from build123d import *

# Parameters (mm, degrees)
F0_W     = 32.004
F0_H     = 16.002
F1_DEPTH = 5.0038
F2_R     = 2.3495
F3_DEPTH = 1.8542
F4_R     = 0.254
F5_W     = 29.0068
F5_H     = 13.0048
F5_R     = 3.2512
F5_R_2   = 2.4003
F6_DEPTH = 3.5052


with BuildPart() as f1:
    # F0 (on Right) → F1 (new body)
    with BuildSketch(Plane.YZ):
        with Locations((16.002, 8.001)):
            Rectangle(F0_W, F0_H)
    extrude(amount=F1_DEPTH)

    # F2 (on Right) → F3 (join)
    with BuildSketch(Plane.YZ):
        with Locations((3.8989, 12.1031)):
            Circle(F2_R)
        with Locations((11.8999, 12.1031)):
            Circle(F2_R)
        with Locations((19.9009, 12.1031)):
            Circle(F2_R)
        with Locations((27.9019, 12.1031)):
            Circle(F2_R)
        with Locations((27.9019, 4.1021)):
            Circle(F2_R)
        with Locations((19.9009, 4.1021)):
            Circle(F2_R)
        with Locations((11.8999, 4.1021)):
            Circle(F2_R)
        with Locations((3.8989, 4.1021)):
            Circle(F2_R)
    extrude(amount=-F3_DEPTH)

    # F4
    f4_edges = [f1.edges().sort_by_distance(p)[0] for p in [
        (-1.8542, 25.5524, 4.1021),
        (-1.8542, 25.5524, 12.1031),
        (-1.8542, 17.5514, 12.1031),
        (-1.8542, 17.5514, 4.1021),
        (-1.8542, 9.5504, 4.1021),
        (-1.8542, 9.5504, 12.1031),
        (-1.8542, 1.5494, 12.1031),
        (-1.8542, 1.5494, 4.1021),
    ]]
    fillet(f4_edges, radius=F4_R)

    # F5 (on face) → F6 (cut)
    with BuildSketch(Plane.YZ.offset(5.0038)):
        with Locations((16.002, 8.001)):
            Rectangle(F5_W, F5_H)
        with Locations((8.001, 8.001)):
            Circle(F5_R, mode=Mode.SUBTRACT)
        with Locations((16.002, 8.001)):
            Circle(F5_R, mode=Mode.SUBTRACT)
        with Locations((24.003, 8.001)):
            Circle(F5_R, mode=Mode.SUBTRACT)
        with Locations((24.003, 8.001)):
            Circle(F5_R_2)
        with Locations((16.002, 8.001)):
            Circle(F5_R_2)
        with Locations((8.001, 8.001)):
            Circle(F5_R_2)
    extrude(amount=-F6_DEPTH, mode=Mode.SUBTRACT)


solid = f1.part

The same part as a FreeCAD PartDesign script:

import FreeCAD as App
import Part
import Sketcher
Q = App.Units.Quantity


def edges_at(feature, points):
    """Names of the edges that pass closest to the given points."""
    edges = feature.Shape.Edges
    near = lambda p: min(range(len(edges)), key=lambda i: edges[i].distToShape(Part.Vertex(*p))[0])
    return sorted({f"Edge{near(p) + 1}" for p in points})

doc = App.newDocument("Part")
body = doc.addObject("PartDesign::Body", "Body")

# Sketch on YZ plane
sketch1 = body.newObject("Sketcher::SketchObject", "Sketch")
sketch1.AttachmentSupport = (doc.getObject("YZ_Plane"), [""])
sketch1.MapMode = "FlatFace"
sketch1.addGeometry(Part.LineSegment(App.Vector(0, 16, 0), App.Vector(0, 0, 0)), False)
sketch1.addGeometry(Part.LineSegment(App.Vector(0, 0, 0), App.Vector(32, 0, 0)), False)
sketch1.addGeometry(Part.LineSegment(App.Vector(32, 0, 0), App.Vector(32, 16, 0)), False)
sketch1.addGeometry(Part.LineSegment(App.Vector(32, 16, 0), App.Vector(0, 16, 0)), False)
sketch1.addConstraint(Sketcher.Constraint("Coincident", 0, 2, 1, 1))
sketch1.addConstraint(Sketcher.Constraint("Coincident", 1, 2, 2, 1))
sketch1.addConstraint(Sketcher.Constraint("Coincident", 2, 2, 3, 1))
sketch1.addConstraint(Sketcher.Constraint("Coincident", 3, 2, 0, 1))
sketch1.addConstraint(Sketcher.Constraint("Vertical", 0))
sketch1.addConstraint(Sketcher.Constraint("Horizontal", 1))
sketch1.addConstraint(Sketcher.Constraint("Vertical", 2))
sketch1.addConstraint(Sketcher.Constraint("Horizontal", 3))
sketch1.addConstraint(Sketcher.Constraint("Coincident", 0, 2, -1, 1))
sketch1.addConstraint(Sketcher.Constraint("DistanceX", 1, 1, 1, 2, Q("1.26 in")))
sketch1.addConstraint(Sketcher.Constraint("DistanceY", 0, 2, 0, 1, Q("0.63 in")))
pad1 = body.newObject("PartDesign::Pad", "Pad")
pad1.Profile = sketch1
pad1.Length = Q("0.197 in")

# Sketch on YZ plane
sketch2 = body.newObject("Sketcher::SketchObject", "Sketch001")
sketch2.AttachmentSupport = (doc.getObject("YZ_Plane"), [""])
sketch2.MapMode = "FlatFace"
sketch2.addGeometry(Part.Circle(App.Vector(3.9, 12.1, 0), App.Vector(0, 0, 1), 2.3), False)
sketch2.addGeometry(Part.Circle(App.Vector(11.9, 12.1, 0), App.Vector(0, 0, 1), 2.3), False)
sketch2.addGeometry(Part.Circle(App.Vector(19.9, 12.1, 0), App.Vector(0, 0, 1), 2.3), False)
sketch2.addGeometry(Part.Circle(App.Vector(27.9, 12.1, 0), App.Vector(0, 0, 1), 2.3), False)
sketch2.addGeometry(Part.Circle(App.Vector(27.9, 4.1, 0), App.Vector(0, 0, 1), 2.3), False)
sketch2.addGeometry(Part.Circle(App.Vector(19.9, 4.1, 0), App.Vector(0, 0, 1), 2.3), False)
sketch2.addGeometry(Part.Circle(App.Vector(11.9, 4.1, 0), App.Vector(0, 0, 1), 2.3), False)
sketch2.addGeometry(Part.Circle(App.Vector(3.9, 4.1, 0), App.Vector(0, 0, 1), 2.3), False)
sketch2.addConstraint(Sketcher.Constraint("Equal", 0, 1))
sketch2.addConstraint(Sketcher.Constraint("Equal", 1, 2))
sketch2.addConstraint(Sketcher.Constraint("Equal", 2, 3))
sketch2.addConstraint(Sketcher.Constraint("Equal", 3, 4))
sketch2.addConstraint(Sketcher.Constraint("Equal", 4, 5))
sketch2.addConstraint(Sketcher.Constraint("Equal", 5, 6))
sketch2.addConstraint(Sketcher.Constraint("Equal", 6, 7))
sketch2.addConstraint(Sketcher.Constraint("Horizontal", 0, 3, 1, 3))
sketch2.addConstraint(Sketcher.Constraint("Horizontal", 1, 3, 2, 3))
sketch2.addConstraint(Sketcher.Constraint("Horizontal", 2, 3, 3, 3))
sketch2.addConstraint(Sketcher.Constraint("Horizontal", 4, 3, 5, 3))
sketch2.addConstraint(Sketcher.Constraint("Horizontal", 5, 3, 6, 3))
sketch2.addConstraint(Sketcher.Constraint("Horizontal", 6, 3, 7, 3))
sketch2.addConstraint(Sketcher.Constraint("Vertical", 3, 3, 4, 3))
sketch2.addConstraint(Sketcher.Constraint("Vertical", 2, 3, 5, 3))
sketch2.addConstraint(Sketcher.Constraint("Vertical", 1, 3, 6, 3))
sketch2.addConstraint(Sketcher.Constraint("Vertical", 0, 3, 7, 3))
sketch2.addConstraint(Sketcher.Constraint("Diameter", 0, Q("0.185 in")))
sketch2.addConstraint(Sketcher.Constraint("DistanceX", 0, 3, 2, 3, Q("0.63 in")))
sketch2.addConstraint(Sketcher.Constraint("DistanceX", 1, 3, 3, 3, Q("0.63 in")))
sketch2.addConstraint(Sketcher.Constraint("DistanceX", 0, 3, 1, 3, Q("0.315 in")))
sketch2.addConstraint(Sketcher.Constraint("DistanceY", 4, 3, 3, 3, Q("0.315 in")))
sketch2.addConstraint(Sketcher.Constraint("DistanceX", -1, 1, 0, 3, Q("0.1535 in")))
sketch2.addConstraint(Sketcher.Constraint("DistanceY", -1, 1, 0, 3, Q("0.4765 in")))
pad2 = body.newObject("PartDesign::Pad", "Pad001")
pad2.Profile = sketch2
pad2.Length = Q("0.073 in")
pad2.Reversed = True
doc.recompute()

fillet = body.newObject("PartDesign::Fillet", "Fillet")
fillet.Base = (pad2, edges_at(pad2, [
    (-1.854, 25.552, 4.102),
    (-1.854, 25.552, 12.103),
    (-1.854, 17.551, 12.103),
    (-1.854, 17.551, 4.102),
    (-1.854, 9.55, 4.102),
    (-1.854, 9.55, 12.103),
    (-1.854, 1.549, 12.103),
    (-1.854, 1.549, 4.102),
]))
fillet.Radius = Q("0.01 in")

# Sketch on YZ plane
sketch3 = body.newObject("Sketcher::SketchObject", "Sketch002")
sketch3.AttachmentSupport = (doc.getObject("YZ_Plane"), [""])
sketch3.MapMode = "FlatFace"
sketch3.AttachmentOffset = App.Placement(App.Vector(0, 0, 0.197 * 25.4), App.Rotation())
sketch3.addGeometry(Part.LineSegment(App.Vector(1.5, 14.5, 0), App.Vector(1.5, 1.5, 0)), False)
sketch3.addGeometry(Part.LineSegment(App.Vector(1.5, 1.5, 0), App.Vector(30.5, 1.5, 0)), False)
sketch3.addGeometry(Part.LineSegment(App.Vector(30.5, 1.5, 0), App.Vector(30.5, 14.5, 0)), False)
sketch3.addGeometry(Part.LineSegment(App.Vector(30.5, 14.5, 0), App.Vector(1.5, 14.5, 0)), False)
sketch3.addGeometry(Part.Circle(App.Vector(8, 8, 0), App.Vector(0, 0, 1), 3.3), False)
sketch3.addGeometry(Part.Circle(App.Vector(16, 8, 0), App.Vector(0, 0, 1), 3.3), False)
sketch3.addGeometry(Part.Circle(App.Vector(24, 8, 0), App.Vector(0, 0, 1), 3.3), False)
sketch3.addGeometry(Part.Circle(App.Vector(24, 8, 0), App.Vector(0, 0, 1), 2.4), False)
sketch3.addGeometry(Part.Circle(App.Vector(16, 8, 0), App.Vector(0, 0, 1), 2.4), False)
sketch3.addGeometry(Part.Circle(App.Vector(8, 8, 0), App.Vector(0, 0, 1), 2.4), False)
sketch3.addConstraint(Sketcher.Constraint("Coincident", 0, 2, 1, 1))
sketch3.addConstraint(Sketcher.Constraint("Coincident", 1, 2, 2, 1))
sketch3.addConstraint(Sketcher.Constraint("Coincident", 2, 2, 3, 1))
sketch3.addConstraint(Sketcher.Constraint("Coincident", 3, 2, 0, 1))
sketch3.addConstraint(Sketcher.Constraint("Vertical", 0))
sketch3.addConstraint(Sketcher.Constraint("Horizontal", 1))
sketch3.addConstraint(Sketcher.Constraint("Vertical", 2))
sketch3.addConstraint(Sketcher.Constraint("Horizontal", 3))
sketch3.addConstraint(Sketcher.Constraint("Coincident", 7, 3, 6, 3))
sketch3.addConstraint(Sketcher.Constraint("Coincident", 8, 3, 5, 3))
sketch3.addConstraint(Sketcher.Constraint("Coincident", 9, 3, 4, 3))
sketch3.addConstraint(Sketcher.Constraint("Equal", 4, 5))
sketch3.addConstraint(Sketcher.Constraint("Equal", 5, 6))
sketch3.addConstraint(Sketcher.Constraint("Equal", 7, 8))
sketch3.addConstraint(Sketcher.Constraint("Equal", 8, 9))
sketch3.addConstraint(Sketcher.Constraint("Horizontal", 4, 3, 5, 3))
sketch3.addConstraint(Sketcher.Constraint("Horizontal", 5, 3, 6, 3))
sketch3.addConstraint(Sketcher.Constraint("Diameter", 4, Q("0.256 in")))
sketch3.addConstraint(Sketcher.Constraint("Diameter", 7, Q("0.189 in")))
sketch3.addConstraint(Sketcher.Constraint("DistanceX", 1, 1, 1, 2, Q("1.142 in")))
sketch3.addConstraint(Sketcher.Constraint("DistanceY", 0, 2, 0, 1, Q("0.512 in")))
sketch3.addConstraint(Sketcher.Constraint("DistanceX", -1, 1, 5, 3, Q("0.63 in")))
sketch3.addConstraint(Sketcher.Constraint("DistanceX", 4, 3, 6, 3, Q("0.63 in")))
sketch3.addConstraint(Sketcher.Constraint("DistanceX", -1, 1, 4, 3, Q("0.315 in")))
sketch3.addConstraint(Sketcher.Constraint("DistanceY", -1, 1, 4, 3, Q("0.315 in")))
sketch3.addConstraint(Sketcher.Constraint("DistanceX", -1, 1, 0, 2, Q("0.059 in")))
sketch3.addConstraint(Sketcher.Constraint("DistanceY", -1, 1, 0, 2, Q("0.059 in")))
pocket1 = body.newObject("PartDesign::Pocket", "Pocket")
pocket1.Profile = sketch3
pocket1.Length = Q("0.138 in")

doc.recompute()
